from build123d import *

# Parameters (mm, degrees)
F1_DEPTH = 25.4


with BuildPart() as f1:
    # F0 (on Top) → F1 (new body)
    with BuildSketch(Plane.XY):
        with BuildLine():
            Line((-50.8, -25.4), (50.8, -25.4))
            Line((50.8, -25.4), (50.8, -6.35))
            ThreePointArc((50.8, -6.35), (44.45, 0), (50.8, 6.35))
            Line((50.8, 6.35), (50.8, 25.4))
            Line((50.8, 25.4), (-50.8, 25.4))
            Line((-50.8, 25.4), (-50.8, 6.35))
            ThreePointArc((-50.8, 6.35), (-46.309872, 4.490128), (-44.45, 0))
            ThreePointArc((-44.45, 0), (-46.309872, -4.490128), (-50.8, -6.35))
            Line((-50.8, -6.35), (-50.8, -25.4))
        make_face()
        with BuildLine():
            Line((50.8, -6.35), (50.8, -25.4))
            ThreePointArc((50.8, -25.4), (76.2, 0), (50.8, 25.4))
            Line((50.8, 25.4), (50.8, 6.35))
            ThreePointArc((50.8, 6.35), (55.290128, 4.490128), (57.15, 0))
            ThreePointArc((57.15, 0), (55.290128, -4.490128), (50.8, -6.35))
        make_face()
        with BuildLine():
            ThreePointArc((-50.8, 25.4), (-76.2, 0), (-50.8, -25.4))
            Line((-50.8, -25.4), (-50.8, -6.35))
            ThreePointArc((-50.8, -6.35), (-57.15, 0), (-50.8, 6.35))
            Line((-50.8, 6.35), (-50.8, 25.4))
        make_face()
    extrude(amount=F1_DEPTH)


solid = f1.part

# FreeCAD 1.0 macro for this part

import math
import FreeCAD as App
import Part
import Sketcher

V = App.Vector
Q = App.Units.Quantity

doc = App.newDocument("Part")
body = doc.addObject("PartDesign::Body", "Body")

# Sketch on XY plane
sketch1 = body.newObject("Sketcher::SketchObject", "Sketch")
sketch1.AttachmentSupport = (doc.getObject("XY_Plane"), [""])
sketch1.MapMode = "FlatFace"
sketch1.addGeometry([
    Part.LineSegment(V(-51, -25, 0), V(51, -25, 0)),  # 0
    Part.ArcOfCircle(Part.Circle(V(51, 0, 0), V(0, 0, 1), 25), math.radians(-90), math.radians(90)),  # 1
    Part.LineSegment(V(51, 25, 0), V(-51, 25, 0)),  # 2
    Part.ArcOfCircle(Part.Circle(V(-51, 0, 0), V(0, 0, 1), 25), math.radians(90), math.radians(270)),  # 3
    Part.ArcOfCircle(Part.Circle(V(-51, 0, 0), V(0, 0, 1), 6), math.radians(0), math.radians(90)),  # 4
    Part.ArcOfCircle(Part.Circle(V(-51, 0, 0), V(0, 0, 1), 6), math.radians(-90), math.radians(0)),  # 5
    Part.ArcOfCircle(Part.Circle(V(-51, 0, 0), V(0, 0, 1), 6), math.radians(90), math.radians(270)),  # 6
    Part.ArcOfCircle(Part.Circle(V(51, 0, 0), V(0, 0, 1), 6), math.radians(90), math.radians(270)),  # 7
    Part.ArcOfCircle(Part.Circle(V(51, 0, 0), V(0, 0, 1), 6), math.radians(0), math.radians(90)),  # 8
    Part.ArcOfCircle(Part.Circle(V(51, 0, 0), V(0, 0, 1), 6), math.radians(-90), math.radians(0)),  # 9
], False)
sketch1.addConstraint([
    Sketcher.Constraint("Tangent", 0, 2, 1, 1),
    Sketcher.Constraint("Tangent", 1, 2, 2, 1),
    Sketcher.Constraint("Tangent", 2, 2, 3, 1),
    Sketcher.Constraint("Tangent", 3, 2, 0, 1),
    Sketcher.Constraint("Tangent", 4, 1, 5, 2),
    Sketcher.Constraint("Tangent", 5, 1, 6, 2),
    Sketcher.Constraint("Tangent", 6, 1, 4, 2),
    Sketcher.Constraint("Tangent", 7, 1, 8, 2),
    Sketcher.Constraint("Tangent", 8, 1, 9, 2),
    Sketcher.Constraint("Tangent", 9, 1, 7, 2),
    Sketcher.Constraint("Horizontal", 0),
    Sketcher.Constraint("Horizontal", 2),
    Sketcher.Constraint("Coincident", 4, 3, 3, 3),
    Sketcher.Constraint("Coincident", 7, 3, 1, 3),
    Sketcher.Constraint("Equal", 6, 7),
    Sketcher.Constraint("Symmetric", 1, 3, 3, 3, -1, 1),
    Sketcher.Constraint("PointOnObject", 4, 1, -1),
    Sketcher.Constraint("PointOnObject", 8, 1, -1),
    Sketcher.Constraint("Vertical", 3, 2, 5, 1),
    Sketcher.Constraint("Vertical", 5, 1, 6, 1),
    Sketcher.Constraint("Vertical", 1, 2, 7, 1),
    Sketcher.Constraint("Vertical", 7, 1, 9, 1),
    Sketcher.Constraint("Radius", 1, Q("1 in")),
    Sketcher.Constraint("DistanceX", 0, 1, 0, 2, Q("4 in")),
    Sketcher.Constraint("Radius", 4, Q("0.25 in")),
])
pad1 = body.newObject("PartDesign::Pad", "Pad")
pad1.Profile = sketch1
pad1.Length = Q("1 in")

doc.recompute()
